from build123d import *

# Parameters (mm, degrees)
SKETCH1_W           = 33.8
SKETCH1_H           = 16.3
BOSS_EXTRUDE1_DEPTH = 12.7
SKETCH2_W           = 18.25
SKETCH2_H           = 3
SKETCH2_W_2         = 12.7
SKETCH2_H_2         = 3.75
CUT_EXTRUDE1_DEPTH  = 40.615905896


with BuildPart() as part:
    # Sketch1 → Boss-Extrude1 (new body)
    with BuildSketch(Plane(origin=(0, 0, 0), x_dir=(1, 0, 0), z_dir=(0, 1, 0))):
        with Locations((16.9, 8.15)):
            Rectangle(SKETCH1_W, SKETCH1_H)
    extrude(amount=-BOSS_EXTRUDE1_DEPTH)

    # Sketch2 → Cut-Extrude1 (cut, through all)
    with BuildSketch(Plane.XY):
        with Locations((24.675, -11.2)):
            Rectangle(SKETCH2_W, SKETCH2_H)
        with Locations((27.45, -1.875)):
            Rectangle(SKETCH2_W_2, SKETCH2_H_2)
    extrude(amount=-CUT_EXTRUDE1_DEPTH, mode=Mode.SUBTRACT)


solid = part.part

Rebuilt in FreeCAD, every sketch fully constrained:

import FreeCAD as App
import Part
import Sketcher

V = App.Vector
Q = App.Units.Quantity

doc = App.newDocument("Part")
params = doc.addObject("Spreadsheet::Sheet", "Params")
for row, (alias, value) in enumerate([
    ("sketch1_width", "33.8 mm"),
    ("sketch1_height", "16.3 mm"),
    ("pad1_length", "12.7 mm"),
    ("sketch2_height", "3 mm"),
    ("sketch2_width", "12.7 mm"),
    ("sketch2_width2", "18.25 mm"),
    ("sketch2_height2", "3.75 mm"),
], start=1):
    params.set(f"A{row}", alias)
    params.set(f"B{row}", "=" + value)
    params.setAlias(f"B{row}", alias)

body = doc.addObject("PartDesign::Body", "Body")

# Sketch on XZ plane
sketch1 = body.newObject("Sketcher::SketchObject", "Sketch")
sketch1.AttachmentSupport = (doc.getObject("XZ_Plane"), [""])
sketch1.MapMode = "FlatFace"
sketch1.addGeometry([
    Part.LineSegment(V(0, -16, 0), V(0, 0, 0)),
    Part.LineSegment(V(0, 0, 0), V(34, 0, 0)),
    Part.LineSegment(V(34, 0, 0), V(34, -16, 0)),
    Part.LineSegment(V(34, -16, 0), V(0, -16, 0)),
], False)
sketch1.addConstraint([
    Sketcher.Constraint("Coincident", 0, 2, 1, 1),
    Sketcher.Constraint("Coincident", 1, 2, 2, 1),
    Sketcher.Constraint("Coincident", 2, 2, 3, 1),
    Sketcher.Constraint("Coincident", 3, 2, 0, 1),
    Sketcher.Constraint("Vertical", 0),
    Sketcher.Constraint("Horizontal", 1),
    Sketcher.Constraint("Vertical", 2),
    Sketcher.Constraint("Horizontal", 3),
    Sketcher.Constraint("Coincident", 0, 2, -1, 1),
    Sketcher.Constraint("DistanceX", 1, 1, 1, 2, Q("33.8 mm")),
    Sketcher.Constraint("DistanceY", 0, 1, 0, 2, Q("16.3 mm")),
])
sketch1.setExpression("Constraints[9]", "Params.sketch1_width")
sketch1.setExpression("Constraints[10]", "Params.sketch1_height")
pad1 = body.newObject("PartDesign::Pad", "Pad")
pad1.Profile = sketch1
pad1.setExpression("Length", "Params.pad1_length")

# Sketch on XY plane
sketch2 = body.newObject("Sketcher::SketchObject", "Sketch001")
sketch2.AttachmentSupport = (doc.getObject("XY_Plane"), [""])
sketch2.MapMode = "FlatFace"
sketch2.addGeometry([
    Part.LineSegment(V(15.6, -9.7, 0), V(15.6, -12.7, 0)),  # 0
    Part.LineSegment(V(15.6, -12.7, 0), V(33.8, -12.7, 0)),  # 1
    Part.LineSegment(V(33.8, -12.7, 0), V(33.8, -9.7, 0)),  # 2
    Part.LineSegment(V(33.8, -9.7, 0), V(15.6, -9.7, 0)),  # 3
    Part.LineSegment(V(21.1, 0, 0), V(21.1, -3.8, 0)),  # 4
    Part.LineSegment(V(21.1, -3.8, 0), V(33.8, -3.8, 0)),  # 5
    Part.LineSegment(V(33.8, -3.8, 0), V(33.8, 0, 0)),  # 6
    Part.LineSegment(V(33.8, 0, 0), V(21.1, 0, 0)),  # 7
], False)
sketch2.addConstraint([
    Sketcher.Constraint("Coincident", 0, 2, 1, 1),
    Sketcher.Constraint("Coincident", 1, 2, 2, 1),
    Sketcher.Constraint("Coincident", 2, 2, 3, 1),
    Sketcher.Constraint("Coincident", 3, 2, 0, 1),
    Sketcher.Constraint("Coincident", 4, 2, 5, 1),
    Sketcher.Constraint("Coincident", 5, 2, 6, 1),
    Sketcher.Constraint("Coincident", 6, 2, 7, 1),
    Sketcher.Constraint("Coincident", 7, 2, 4, 1),
    Sketcher.Constraint("Vertical", 0),
    Sketcher.Constraint("Horizontal", 1),
    Sketcher.Constraint("Vertical", 2),
    Sketcher.Constraint("Horizontal", 3),
    Sketcher.Constraint("Vertical", 4),
    Sketcher.Constraint("Horizontal", 5),
    Sketcher.Constraint("Vertical", 6),
    Sketcher.Constraint("Horizontal", 7),
    Sketcher.Constraint("PointOnObject", 6, 2, -1),
    Sketcher.Constraint("Vertical", 2, 2, 5, 2),
    Sketcher.Constraint("DistanceY", 0, 2, 0, 1, Q("3 mm")),
    Sketcher.Constraint("DistanceX", 5, 1, 5, 2, Q("12.7 mm")),
    Sketcher.Constraint("DistanceX", 1, 1, 1, 2, Q("18.25 mm")),
    Sketcher.Constraint("DistanceY", 4, 2, 4, 1, Q("3.75 mm")),
    Sketcher.Constraint("DistanceY", 0, 2, -1, 1, Q("12.7 mm")),
    Sketcher.Constraint("DistanceX", -1, 1, 1, 2, Q("33.8 mm")),
])
sketch2.setExpression("Constraints[18]", "Params.sketch2_height")
sketch2.setExpression("Constraints[19]", "Params.sketch2_width")
sketch2.setExpression("Constraints[20]", "Params.sketch2_width2")
sketch2.setExpression("Constraints[21]", "Params.sketch2_height2")
pocket1 = body.newObject("PartDesign::Pocket", "Pocket")
pocket1.Profile = sketch2
pocket1.Type = "ThroughAll"

doc.recompute()
